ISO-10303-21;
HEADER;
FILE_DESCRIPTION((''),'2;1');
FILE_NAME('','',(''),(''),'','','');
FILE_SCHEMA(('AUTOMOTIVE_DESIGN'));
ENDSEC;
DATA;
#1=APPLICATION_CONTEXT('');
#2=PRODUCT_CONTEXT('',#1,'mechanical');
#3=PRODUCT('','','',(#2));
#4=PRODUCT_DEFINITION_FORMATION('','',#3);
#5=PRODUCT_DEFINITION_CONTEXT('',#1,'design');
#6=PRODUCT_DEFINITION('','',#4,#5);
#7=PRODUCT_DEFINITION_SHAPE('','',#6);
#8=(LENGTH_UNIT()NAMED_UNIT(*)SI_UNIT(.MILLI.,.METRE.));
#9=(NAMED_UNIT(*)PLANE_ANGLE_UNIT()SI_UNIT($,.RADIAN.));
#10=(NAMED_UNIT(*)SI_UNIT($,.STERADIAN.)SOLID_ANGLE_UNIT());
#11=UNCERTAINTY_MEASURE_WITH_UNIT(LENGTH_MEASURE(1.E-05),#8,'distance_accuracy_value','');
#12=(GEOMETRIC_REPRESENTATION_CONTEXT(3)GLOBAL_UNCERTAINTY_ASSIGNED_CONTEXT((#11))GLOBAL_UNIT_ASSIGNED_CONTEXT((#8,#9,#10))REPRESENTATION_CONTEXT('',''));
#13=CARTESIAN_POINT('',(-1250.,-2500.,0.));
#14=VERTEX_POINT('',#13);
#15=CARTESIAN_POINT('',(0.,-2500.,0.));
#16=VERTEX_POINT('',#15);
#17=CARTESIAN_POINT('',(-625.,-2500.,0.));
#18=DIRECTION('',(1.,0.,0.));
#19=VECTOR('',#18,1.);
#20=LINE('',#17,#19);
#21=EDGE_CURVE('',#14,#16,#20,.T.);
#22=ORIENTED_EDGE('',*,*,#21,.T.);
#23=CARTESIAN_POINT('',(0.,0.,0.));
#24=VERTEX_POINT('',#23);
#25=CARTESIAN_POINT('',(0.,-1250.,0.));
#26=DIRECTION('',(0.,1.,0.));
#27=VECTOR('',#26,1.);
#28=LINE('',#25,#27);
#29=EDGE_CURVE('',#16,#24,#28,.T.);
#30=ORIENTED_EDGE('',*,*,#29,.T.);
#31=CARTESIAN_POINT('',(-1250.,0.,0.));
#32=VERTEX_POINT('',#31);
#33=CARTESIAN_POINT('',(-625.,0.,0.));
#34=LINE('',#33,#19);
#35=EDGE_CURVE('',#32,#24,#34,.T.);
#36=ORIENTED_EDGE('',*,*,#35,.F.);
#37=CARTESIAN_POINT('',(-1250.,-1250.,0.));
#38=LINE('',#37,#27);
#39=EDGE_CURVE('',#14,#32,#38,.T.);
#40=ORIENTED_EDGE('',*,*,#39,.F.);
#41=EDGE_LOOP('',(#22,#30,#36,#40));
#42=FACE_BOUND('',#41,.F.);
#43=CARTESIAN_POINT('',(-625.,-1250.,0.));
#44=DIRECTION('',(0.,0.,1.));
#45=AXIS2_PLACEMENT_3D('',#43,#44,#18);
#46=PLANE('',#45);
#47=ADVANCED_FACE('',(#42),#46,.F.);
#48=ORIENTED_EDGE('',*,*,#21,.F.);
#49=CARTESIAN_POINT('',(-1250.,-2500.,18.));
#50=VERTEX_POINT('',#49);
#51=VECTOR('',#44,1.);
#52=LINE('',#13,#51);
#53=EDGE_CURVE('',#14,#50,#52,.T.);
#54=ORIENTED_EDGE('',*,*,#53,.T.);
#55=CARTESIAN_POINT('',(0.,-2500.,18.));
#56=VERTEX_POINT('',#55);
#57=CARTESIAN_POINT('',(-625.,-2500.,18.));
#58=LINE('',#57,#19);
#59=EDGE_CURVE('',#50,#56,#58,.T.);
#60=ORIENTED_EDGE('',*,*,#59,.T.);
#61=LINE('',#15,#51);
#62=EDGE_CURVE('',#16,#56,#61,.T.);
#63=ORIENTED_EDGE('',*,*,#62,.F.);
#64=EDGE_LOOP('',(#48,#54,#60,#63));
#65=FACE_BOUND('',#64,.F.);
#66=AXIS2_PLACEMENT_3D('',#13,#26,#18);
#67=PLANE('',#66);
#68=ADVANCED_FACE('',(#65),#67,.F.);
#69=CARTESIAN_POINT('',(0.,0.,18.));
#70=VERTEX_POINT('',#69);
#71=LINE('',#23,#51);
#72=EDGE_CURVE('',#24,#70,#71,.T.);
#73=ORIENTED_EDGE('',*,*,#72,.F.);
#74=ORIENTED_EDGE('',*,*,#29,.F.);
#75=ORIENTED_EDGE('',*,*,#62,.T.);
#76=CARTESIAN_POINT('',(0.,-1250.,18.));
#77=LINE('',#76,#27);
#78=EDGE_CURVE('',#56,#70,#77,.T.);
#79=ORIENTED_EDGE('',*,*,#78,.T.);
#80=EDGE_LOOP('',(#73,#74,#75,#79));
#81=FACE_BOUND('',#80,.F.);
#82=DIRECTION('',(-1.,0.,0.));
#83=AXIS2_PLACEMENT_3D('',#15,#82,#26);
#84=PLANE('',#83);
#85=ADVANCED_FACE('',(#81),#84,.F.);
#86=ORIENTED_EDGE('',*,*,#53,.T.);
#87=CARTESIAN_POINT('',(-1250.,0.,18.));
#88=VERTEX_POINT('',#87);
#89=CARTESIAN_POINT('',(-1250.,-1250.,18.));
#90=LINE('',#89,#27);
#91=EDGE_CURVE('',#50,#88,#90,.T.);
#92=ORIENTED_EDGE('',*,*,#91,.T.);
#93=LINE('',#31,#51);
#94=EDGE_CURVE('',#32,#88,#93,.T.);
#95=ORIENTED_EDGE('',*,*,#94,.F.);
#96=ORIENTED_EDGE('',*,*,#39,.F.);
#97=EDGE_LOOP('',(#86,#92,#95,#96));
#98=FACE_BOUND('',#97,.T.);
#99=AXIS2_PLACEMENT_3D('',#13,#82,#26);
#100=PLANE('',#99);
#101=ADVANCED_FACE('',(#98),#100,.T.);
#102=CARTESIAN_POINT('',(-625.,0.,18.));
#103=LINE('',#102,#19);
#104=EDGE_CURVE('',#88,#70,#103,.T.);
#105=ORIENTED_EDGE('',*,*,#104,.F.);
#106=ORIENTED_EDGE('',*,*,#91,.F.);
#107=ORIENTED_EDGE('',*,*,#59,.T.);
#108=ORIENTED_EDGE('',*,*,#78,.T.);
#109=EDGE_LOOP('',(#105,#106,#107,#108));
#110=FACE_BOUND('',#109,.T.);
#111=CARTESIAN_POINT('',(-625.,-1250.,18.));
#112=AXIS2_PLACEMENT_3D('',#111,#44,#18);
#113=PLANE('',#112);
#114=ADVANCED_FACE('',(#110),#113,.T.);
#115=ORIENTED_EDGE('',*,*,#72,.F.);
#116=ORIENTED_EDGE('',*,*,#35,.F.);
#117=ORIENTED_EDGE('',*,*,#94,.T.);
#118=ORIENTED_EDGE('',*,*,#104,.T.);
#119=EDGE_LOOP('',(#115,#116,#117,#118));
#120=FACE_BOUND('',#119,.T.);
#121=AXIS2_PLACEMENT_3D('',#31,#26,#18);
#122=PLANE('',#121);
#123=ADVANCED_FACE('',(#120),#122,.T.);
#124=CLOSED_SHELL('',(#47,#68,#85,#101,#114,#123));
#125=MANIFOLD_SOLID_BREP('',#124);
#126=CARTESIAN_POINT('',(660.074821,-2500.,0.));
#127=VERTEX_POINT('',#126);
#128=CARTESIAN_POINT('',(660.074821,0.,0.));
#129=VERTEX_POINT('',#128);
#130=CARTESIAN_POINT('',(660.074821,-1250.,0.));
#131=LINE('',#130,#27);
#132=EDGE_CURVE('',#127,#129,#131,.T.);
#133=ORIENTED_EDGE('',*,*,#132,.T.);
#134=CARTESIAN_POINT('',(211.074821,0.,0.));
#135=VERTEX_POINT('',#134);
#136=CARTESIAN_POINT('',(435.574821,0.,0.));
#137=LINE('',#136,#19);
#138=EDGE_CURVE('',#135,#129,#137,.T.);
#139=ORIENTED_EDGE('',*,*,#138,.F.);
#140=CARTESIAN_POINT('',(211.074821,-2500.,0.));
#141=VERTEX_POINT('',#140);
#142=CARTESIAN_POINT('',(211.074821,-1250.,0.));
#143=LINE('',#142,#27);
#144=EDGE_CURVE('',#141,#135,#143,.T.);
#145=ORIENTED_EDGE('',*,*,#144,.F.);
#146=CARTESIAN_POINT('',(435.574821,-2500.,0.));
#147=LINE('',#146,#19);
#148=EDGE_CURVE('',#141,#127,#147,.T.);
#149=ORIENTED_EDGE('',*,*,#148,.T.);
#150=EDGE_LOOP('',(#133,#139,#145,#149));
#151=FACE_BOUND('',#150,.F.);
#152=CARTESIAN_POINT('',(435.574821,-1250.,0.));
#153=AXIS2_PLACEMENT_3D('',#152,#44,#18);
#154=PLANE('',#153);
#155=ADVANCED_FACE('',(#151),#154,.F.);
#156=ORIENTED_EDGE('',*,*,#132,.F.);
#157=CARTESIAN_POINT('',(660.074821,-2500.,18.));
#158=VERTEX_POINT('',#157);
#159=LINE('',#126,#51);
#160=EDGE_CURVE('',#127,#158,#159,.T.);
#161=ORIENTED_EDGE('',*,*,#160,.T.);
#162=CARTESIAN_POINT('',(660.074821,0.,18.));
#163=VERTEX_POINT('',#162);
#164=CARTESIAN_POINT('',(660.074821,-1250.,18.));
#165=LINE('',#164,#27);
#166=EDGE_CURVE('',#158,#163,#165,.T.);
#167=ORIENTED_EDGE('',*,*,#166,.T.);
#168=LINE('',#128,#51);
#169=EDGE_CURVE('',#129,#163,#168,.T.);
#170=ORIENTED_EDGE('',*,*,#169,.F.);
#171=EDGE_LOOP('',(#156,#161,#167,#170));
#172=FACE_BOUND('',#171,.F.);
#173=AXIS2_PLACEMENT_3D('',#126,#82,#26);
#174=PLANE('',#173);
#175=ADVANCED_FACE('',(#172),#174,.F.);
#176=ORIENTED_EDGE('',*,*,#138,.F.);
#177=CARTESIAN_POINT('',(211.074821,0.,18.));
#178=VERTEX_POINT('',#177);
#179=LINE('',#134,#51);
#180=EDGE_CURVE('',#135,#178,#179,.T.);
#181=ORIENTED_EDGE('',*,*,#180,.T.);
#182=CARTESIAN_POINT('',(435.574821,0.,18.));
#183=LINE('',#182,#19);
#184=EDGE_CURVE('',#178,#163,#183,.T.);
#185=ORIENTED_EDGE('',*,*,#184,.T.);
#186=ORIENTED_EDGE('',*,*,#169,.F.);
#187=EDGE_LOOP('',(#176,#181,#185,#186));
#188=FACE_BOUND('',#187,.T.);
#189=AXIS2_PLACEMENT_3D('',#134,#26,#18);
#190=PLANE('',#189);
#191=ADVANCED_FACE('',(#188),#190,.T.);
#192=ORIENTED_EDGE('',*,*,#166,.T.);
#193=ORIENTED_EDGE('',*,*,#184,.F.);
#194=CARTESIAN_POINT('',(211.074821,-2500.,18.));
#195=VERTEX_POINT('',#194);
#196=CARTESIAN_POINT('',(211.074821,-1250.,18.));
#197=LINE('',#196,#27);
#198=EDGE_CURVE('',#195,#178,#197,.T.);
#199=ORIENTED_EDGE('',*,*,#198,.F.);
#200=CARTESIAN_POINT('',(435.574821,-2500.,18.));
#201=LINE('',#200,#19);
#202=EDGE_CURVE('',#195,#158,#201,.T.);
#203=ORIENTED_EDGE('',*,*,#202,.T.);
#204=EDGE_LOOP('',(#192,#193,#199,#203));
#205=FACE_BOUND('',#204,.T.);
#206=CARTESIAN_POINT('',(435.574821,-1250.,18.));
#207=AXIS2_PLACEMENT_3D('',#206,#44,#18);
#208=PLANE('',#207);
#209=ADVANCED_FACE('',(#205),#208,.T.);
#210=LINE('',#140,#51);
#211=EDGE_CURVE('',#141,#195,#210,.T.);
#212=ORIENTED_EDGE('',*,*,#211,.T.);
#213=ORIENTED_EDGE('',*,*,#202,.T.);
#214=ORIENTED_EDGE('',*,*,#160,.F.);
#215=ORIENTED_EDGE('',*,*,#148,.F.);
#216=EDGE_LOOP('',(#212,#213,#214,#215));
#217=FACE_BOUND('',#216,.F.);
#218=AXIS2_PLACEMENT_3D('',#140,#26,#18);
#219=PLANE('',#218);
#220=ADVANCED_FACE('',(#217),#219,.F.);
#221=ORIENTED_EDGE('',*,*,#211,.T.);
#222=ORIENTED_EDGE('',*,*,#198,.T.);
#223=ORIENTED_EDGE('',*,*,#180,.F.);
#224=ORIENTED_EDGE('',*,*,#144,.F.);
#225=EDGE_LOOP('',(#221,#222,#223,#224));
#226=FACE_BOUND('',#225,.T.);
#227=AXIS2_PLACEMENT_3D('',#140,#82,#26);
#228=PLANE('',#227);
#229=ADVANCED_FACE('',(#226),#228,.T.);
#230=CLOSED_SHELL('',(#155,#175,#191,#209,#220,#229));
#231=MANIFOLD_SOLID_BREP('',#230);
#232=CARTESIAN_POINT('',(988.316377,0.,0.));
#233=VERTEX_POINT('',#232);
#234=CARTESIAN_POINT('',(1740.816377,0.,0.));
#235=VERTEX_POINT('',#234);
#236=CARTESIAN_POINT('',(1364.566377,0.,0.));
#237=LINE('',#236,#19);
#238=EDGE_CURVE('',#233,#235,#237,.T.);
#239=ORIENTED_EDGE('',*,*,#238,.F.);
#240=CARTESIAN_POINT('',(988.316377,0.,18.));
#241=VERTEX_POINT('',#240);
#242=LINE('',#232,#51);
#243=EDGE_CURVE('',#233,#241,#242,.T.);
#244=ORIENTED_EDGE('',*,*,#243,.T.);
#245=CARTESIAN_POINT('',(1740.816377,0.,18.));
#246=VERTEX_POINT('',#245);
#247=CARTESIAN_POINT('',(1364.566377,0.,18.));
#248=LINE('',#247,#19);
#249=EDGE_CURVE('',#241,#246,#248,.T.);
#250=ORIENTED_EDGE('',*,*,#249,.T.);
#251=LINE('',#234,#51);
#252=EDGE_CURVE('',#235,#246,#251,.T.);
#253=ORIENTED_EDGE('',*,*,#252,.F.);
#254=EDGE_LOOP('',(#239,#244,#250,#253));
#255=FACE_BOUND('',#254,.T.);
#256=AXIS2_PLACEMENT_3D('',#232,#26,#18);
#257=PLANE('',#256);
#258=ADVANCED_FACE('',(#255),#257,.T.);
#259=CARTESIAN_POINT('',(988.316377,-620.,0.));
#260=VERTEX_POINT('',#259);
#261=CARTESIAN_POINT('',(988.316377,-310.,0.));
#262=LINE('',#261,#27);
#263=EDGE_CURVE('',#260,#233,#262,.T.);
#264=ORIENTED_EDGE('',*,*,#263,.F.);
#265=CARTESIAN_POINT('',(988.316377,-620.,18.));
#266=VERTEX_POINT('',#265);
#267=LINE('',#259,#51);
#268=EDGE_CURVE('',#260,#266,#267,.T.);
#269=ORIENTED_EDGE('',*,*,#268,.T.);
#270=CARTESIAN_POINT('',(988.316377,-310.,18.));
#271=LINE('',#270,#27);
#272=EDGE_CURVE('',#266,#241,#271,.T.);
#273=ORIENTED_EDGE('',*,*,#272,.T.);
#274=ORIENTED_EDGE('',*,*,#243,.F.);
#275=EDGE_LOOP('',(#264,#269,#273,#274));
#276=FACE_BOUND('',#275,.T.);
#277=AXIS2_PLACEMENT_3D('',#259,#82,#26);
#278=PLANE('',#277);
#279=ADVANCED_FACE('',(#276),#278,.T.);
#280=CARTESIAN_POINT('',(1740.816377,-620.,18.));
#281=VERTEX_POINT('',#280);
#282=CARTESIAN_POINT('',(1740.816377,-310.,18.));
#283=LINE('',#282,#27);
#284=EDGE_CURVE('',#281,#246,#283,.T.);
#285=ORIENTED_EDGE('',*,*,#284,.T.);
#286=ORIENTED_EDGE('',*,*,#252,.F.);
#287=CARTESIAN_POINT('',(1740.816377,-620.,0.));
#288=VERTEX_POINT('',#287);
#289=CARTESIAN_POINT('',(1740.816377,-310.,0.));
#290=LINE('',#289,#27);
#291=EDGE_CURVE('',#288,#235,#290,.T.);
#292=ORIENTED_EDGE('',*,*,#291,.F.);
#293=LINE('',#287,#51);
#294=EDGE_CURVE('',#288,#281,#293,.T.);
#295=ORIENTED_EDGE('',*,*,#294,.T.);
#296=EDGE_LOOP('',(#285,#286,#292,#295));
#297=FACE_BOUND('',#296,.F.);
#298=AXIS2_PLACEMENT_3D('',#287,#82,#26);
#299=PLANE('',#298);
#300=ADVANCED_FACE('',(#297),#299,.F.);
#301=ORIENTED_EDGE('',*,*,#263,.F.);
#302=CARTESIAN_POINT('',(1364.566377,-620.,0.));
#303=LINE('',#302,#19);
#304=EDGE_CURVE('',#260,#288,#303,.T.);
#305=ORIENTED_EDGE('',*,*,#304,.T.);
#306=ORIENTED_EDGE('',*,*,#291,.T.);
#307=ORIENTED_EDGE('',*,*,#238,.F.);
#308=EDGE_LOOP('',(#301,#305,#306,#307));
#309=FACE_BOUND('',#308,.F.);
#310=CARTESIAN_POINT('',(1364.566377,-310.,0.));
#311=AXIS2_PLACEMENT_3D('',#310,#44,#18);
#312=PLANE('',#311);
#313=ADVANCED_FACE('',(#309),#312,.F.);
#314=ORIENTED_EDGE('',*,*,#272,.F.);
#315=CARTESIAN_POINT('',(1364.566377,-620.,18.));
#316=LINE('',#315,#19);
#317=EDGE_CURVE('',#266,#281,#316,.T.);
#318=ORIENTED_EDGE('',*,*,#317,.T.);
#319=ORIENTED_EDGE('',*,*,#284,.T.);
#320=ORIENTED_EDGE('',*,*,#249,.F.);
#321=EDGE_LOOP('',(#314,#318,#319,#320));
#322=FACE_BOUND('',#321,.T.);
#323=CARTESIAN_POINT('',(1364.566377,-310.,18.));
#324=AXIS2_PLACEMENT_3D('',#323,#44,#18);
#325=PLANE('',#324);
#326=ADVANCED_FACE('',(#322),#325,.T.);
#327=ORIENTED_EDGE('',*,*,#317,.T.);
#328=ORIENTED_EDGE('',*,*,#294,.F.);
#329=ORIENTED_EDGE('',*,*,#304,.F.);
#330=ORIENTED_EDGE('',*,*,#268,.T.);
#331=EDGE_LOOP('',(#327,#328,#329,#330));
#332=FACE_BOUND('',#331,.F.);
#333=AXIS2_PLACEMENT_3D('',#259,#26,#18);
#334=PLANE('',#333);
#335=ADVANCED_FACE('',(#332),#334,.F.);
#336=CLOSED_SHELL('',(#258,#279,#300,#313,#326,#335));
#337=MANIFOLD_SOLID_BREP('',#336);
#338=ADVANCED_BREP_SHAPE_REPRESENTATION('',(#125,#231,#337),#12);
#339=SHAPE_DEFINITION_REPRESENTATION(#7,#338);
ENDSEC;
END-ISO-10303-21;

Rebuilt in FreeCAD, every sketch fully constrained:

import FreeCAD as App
import Part
import Sketcher
from FreeCAD import Vector

doc = App.newDocument("Part")
body = doc.addObject("PartDesign::Body", "Body")

# Sketch on XY plane
sketch1 = doc.addObject("Sketcher::SketchObject", "Sketch")
body.addObject(sketch1)
sketch1.AttachmentSupport = (doc.XY_Plane, [""])
sketch1.MapMode = "FlatFace"
sketch1.addGeometry(Part.LineSegment(Vector(-1250, 0, 0), Vector(-1250, -2500, 0)), False)
sketch1.addGeometry(Part.LineSegment(Vector(-1250, -2500, 0), Vector(0, -2500, 0)), False)
sketch1.addGeometry(Part.LineSegment(Vector(0, -2500, 0), Vector(0, 0, 0)), False)
sketch1.addGeometry(Part.LineSegment(Vector(0, 0, 0), Vector(-1250, 0, 0)), False)
sketch1.addConstraint(Sketcher.Constraint("Coincident", 0, 2, 1, 1))
sketch1.addConstraint(Sketcher.Constraint("Coincident", 1, 2, 2, 1))
sketch1.addConstraint(Sketcher.Constraint("Coincident", 2, 2, 3, 1))
sketch1.addConstraint(Sketcher.Constraint("Coincident", 3, 2, 0, 1))
sketch1.addConstraint(Sketcher.Constraint("Vertical", 0))
sketch1.addConstraint(Sketcher.Constraint("Horizontal", 1))
sketch1.addConstraint(Sketcher.Constraint("Vertical", 2))
sketch1.addConstraint(Sketcher.Constraint("Horizontal", 3))
sketch1.addConstraint(Sketcher.Constraint("Coincident", 2, 2, -1, 1))
sketch1.addConstraint(Sketcher.Constraint("DistanceX", 1, 1, 1, 2, 1250.0))
sketch1.addConstraint(Sketcher.Constraint("DistanceY", 0, 2, 0, 1, 2500.0))
pad1 = doc.addObject("PartDesign::Pad", "Pad")
body.addObject(pad1)
pad1.Profile = sketch1
pad1.Length = 18
body2 = doc.addObject("PartDesign::Body", "Body001")

# Sketch on XY plane
sketch2 = doc.addObject("Sketcher::SketchObject", "Sketch001")
body2.addObject(sketch2)
sketch2.AttachmentSupport = (doc.getObject("XY_Plane001"), [""])
sketch2.MapMode = "FlatFace"
sketch2.addGeometry(Part.LineSegment(Vector(211, 0, 0), Vector(211, -2500, 0)), False)
sketch2.addGeometry(Part.LineSegment(Vector(211, -2500, 0), Vector(660, -2500, 0)), False)
sketch2.addGeometry(Part.LineSegment(Vector(660, -2500, 0), Vector(660, 0, 0)), False)
sketch2.addGeometry(Part.LineSegment(Vector(660, 0, 0), Vector(211, 0, 0)), False)
sketch2.addConstraint(Sketcher.Constraint("Coincident", 0, 2, 1, 1))
sketch2.addConstraint(Sketcher.Constraint("Coincident", 1, 2, 2, 1))
sketch2.addConstraint(Sketcher.Constraint("Coincident", 2, 2, 3, 1))
sketch2.addConstraint(Sketcher.Constraint("Coincident", 3, 2, 0, 1))
sketch2.addConstraint(Sketcher.Constraint("Vertical", 0))
sketch2.addConstraint(Sketcher.Constraint("Horizontal", 1))
sketch2.addConstraint(Sketcher.Constraint("Vertical", 2))
sketch2.addConstraint(Sketcher.Constraint("Horizontal", 3))
sketch2.addConstraint(Sketcher.Constraint("PointOnObject", 2, 2, -1))
sketch2.addConstraint(Sketcher.Constraint("DistanceX", 1, 1, 1, 2, 449.0))
sketch2.addConstraint(Sketcher.Constraint("DistanceY", 0, 2, 0, 1, 2500.0))
sketch2.addConstraint(Sketcher.Constraint("DistanceX", -1, 1, 0, 2, 211.074821))
pad2 = doc.addObject("PartDesign::Pad", "Pad001")
body2.addObject(pad2)
pad2.Profile = sketch2
pad2.Length = 18
body3 = doc.addObject("PartDesign::Body", "Body002")

# Sketch on XY plane
sketch3 = doc.addObject("Sketcher::SketchObject", "Sketch002")
body3.addObject(sketch3)
sketch3.AttachmentSupport = (doc.getObject("XY_Plane002"), [""])
sketch3.MapMode = "FlatFace"
sketch3.addGeometry(Part.LineSegment(Vector(988, 0, 0), Vector(988, -620, 0)), False)
sketch3.addGeometry(Part.LineSegment(Vector(988, -620, 0), Vector(1741, -620, 0)), False)
sketch3.addGeometry(Part.LineSegment(Vector(1741, -620, 0), Vector(1741, 0, 0)), False)
sketch3.addGeometry(Part.LineSegment(Vector(1741, 0, 0), Vector(988, 0, 0)), False)
sketch3.addConstraint(Sketcher.Constraint("Coincident", 0, 2, 1, 1))
sketch3.addConstraint(Sketcher.Constraint("Coincident", 1, 2, 2, 1))
sketch3.addConstraint(Sketcher.Constraint("Coincident", 2, 2, 3, 1))
sketch3.addConstraint(Sketcher.Constraint("Coincident", 3, 2, 0, 1))
sketch3.addConstraint(Sketcher.Constraint("Vertical", 0))
sketch3.addConstraint(Sketcher.Constraint("Horizontal", 1))
sketch3.addConstraint(Sketcher.Constraint("Vertical", 2))
sketch3.addConstraint(Sketcher.Constraint("Horizontal", 3))
sketch3.addConstraint(Sketcher.Constraint("PointOnObject", 2, 2, -1))
sketch3.addConstraint(Sketcher.Constraint("DistanceY", 0, 2, 0, 1, 620.0))
sketch3.addConstraint(Sketcher.Constraint("DistanceX", 1, 1, 1, 2, 752.5))
sketch3.addConstraint(Sketcher.Constraint("DistanceX", -1, 1, 0, 2, 988.316377))
pad3 = doc.addObject("PartDesign::Pad", "Pad002")
body3.addObject(pad3)
pad3.Profile = sketch3
pad3.Length = 18

doc.recompute()
